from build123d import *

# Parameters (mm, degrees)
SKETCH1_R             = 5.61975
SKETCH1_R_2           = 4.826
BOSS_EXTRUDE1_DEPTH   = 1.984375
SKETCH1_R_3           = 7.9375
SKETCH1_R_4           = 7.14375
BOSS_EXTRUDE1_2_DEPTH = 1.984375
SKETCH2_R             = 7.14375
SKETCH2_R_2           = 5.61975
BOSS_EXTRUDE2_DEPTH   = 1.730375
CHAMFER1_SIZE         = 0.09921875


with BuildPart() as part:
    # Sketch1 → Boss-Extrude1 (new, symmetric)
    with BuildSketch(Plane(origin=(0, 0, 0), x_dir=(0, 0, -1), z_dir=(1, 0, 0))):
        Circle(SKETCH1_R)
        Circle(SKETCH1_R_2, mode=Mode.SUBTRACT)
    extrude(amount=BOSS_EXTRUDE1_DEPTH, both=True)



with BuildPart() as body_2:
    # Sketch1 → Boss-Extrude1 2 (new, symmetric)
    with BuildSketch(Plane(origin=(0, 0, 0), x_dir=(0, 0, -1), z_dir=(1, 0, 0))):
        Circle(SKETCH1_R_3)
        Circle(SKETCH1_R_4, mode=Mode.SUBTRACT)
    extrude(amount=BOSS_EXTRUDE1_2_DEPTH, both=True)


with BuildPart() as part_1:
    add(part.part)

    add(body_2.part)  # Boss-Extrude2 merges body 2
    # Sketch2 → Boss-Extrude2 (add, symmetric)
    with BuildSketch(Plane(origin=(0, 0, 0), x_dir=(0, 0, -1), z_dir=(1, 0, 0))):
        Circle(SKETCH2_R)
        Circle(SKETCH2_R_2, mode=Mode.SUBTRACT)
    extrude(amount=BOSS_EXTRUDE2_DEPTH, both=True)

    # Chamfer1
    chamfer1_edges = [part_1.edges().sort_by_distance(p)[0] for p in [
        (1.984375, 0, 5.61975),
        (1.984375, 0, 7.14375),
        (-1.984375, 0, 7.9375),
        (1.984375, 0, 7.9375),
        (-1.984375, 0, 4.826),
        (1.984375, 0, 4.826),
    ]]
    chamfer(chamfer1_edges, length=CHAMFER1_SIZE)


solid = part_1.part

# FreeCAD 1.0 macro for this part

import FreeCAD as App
import Part
import Sketcher
Q = App.Units.Quantity


def edges_at(feature, points):
    """Names of the edges that pass closest to the given points."""
    edges = feature.Shape.Edges
    near = lambda p: min(range(len(edges)), key=lambda i: edges[i].distToShape(Part.Vertex(*p))[0])
    return sorted({f"Edge{near(p) + 1}" for p in points})

doc = App.newDocument("Part")
body = doc.addObject("PartDesign::Body", "Body")

sketch1 = body.newObject("Sketcher::SketchObject", "Sketch")
sketch1.AttachmentSupport = (doc.getObject("YZ_Plane"), [""])
sketch1.MapMode = "FlatFace"
sketch1.addGeometry([
    Part.Circle(App.Vector(0, 0, 0), App.Vector(0, 0, 1), 5.6),
    Part.Circle(App.Vector(0, 0, 0), App.Vector(0, 0, 1), 4.8),
], False)
sketch1.addConstraint([
    Sketcher.Constraint("Coincident", 0, 3, -1, 1),
    Sketcher.Constraint("Coincident", 1, 3, -1, 1),
    Sketcher.Constraint("Diameter", 1, Q("0.38 in")),
    Sketcher.Constraint("Diameter", 0, Q("0.4425 in")),
])
pad1 = body.newObject("PartDesign::Pad", "Pad")
pad1.Profile = sketch1
pad1.Length = Q("0.15625 in")
pad1.Midplane = True
body2 = doc.addObject("PartDesign::Body", "Body001")

sketch2 = body2.newObject("Sketcher::SketchObject", "Sketch001")
sketch2.AttachmentSupport = (doc.getObject("YZ_Plane001"), [""])
sketch2.MapMode = "FlatFace"
sketch2.addGeometry([
    Part.Circle(App.Vector(0, 0, 0), App.Vector(0, 0, 1), 8),
    Part.Circle(App.Vector(0, 0, 0), App.Vector(0, 0, 1), 7),
], False)
sketch2.addConstraint([
    Sketcher.Constraint("Coincident", 0, 3, -1, 1),
    Sketcher.Constraint("Coincident", 1, 3, -1, 1),
    Sketcher.Constraint("Diameter", 0, Q("0.625 in")),
    Sketcher.Constraint("Diameter", 1, Q("0.5625 in")),
])
pad2 = body2.newObject("PartDesign::Pad", "Pad001")
pad2.Profile = sketch2
pad2.Length = Q("0.15625 in")
pad2.Midplane = True
body.AllowCompound = True
doc.recompute()

boolean = body.newObject("PartDesign::Boolean", "Boolean")
boolean.Type = "Fuse"
boolean.addObjects([body2])

sketch3 = body.newObject("Sketcher::SketchObject", "Sketch002")
sketch3.AttachmentSupport = (doc.getObject("YZ_Plane"), [""])
sketch3.MapMode = "FlatFace"
sketch3.addGeometry([
    Part.Circle(App.Vector(0, 0, 0), App.Vector(0, 0, 1), 7),
    Part.Circle(App.Vector(0, 0, 0), App.Vector(0, 0, 1), 6),
], False)
sketch3.addConstraint([
    Sketcher.Constraint("Coincident", 0, 3, -1, 1),
    Sketcher.Constraint("Coincident", 1, 3, -1, 1),
    Sketcher.Constraint("Diameter", 0, Q("0.5625 in")),
    Sketcher.Constraint("Diameter", 1, Q("0.4425 in")),
])
pad3 = body.newObject("PartDesign::Pad", "Pad002")
pad3.Profile = sketch3
pad3.Length = 3.46075
pad3.Midplane = True
doc.recompute()

chamfer = body.newObject("PartDesign::Chamfer", "Chamfer")
chamfer.Base = (pad3, edges_at(pad3, [
    (1.984, 0, 5.62),
    (1.984, 0, 7.144),
    (-1.984, 0, 7.938),
    (1.984, 0, 7.938),
    (-1.984, 0, 4.826),
    (1.984, 0, 4.826),
]))
chamfer.Size = 0.099219

doc.recompute()
